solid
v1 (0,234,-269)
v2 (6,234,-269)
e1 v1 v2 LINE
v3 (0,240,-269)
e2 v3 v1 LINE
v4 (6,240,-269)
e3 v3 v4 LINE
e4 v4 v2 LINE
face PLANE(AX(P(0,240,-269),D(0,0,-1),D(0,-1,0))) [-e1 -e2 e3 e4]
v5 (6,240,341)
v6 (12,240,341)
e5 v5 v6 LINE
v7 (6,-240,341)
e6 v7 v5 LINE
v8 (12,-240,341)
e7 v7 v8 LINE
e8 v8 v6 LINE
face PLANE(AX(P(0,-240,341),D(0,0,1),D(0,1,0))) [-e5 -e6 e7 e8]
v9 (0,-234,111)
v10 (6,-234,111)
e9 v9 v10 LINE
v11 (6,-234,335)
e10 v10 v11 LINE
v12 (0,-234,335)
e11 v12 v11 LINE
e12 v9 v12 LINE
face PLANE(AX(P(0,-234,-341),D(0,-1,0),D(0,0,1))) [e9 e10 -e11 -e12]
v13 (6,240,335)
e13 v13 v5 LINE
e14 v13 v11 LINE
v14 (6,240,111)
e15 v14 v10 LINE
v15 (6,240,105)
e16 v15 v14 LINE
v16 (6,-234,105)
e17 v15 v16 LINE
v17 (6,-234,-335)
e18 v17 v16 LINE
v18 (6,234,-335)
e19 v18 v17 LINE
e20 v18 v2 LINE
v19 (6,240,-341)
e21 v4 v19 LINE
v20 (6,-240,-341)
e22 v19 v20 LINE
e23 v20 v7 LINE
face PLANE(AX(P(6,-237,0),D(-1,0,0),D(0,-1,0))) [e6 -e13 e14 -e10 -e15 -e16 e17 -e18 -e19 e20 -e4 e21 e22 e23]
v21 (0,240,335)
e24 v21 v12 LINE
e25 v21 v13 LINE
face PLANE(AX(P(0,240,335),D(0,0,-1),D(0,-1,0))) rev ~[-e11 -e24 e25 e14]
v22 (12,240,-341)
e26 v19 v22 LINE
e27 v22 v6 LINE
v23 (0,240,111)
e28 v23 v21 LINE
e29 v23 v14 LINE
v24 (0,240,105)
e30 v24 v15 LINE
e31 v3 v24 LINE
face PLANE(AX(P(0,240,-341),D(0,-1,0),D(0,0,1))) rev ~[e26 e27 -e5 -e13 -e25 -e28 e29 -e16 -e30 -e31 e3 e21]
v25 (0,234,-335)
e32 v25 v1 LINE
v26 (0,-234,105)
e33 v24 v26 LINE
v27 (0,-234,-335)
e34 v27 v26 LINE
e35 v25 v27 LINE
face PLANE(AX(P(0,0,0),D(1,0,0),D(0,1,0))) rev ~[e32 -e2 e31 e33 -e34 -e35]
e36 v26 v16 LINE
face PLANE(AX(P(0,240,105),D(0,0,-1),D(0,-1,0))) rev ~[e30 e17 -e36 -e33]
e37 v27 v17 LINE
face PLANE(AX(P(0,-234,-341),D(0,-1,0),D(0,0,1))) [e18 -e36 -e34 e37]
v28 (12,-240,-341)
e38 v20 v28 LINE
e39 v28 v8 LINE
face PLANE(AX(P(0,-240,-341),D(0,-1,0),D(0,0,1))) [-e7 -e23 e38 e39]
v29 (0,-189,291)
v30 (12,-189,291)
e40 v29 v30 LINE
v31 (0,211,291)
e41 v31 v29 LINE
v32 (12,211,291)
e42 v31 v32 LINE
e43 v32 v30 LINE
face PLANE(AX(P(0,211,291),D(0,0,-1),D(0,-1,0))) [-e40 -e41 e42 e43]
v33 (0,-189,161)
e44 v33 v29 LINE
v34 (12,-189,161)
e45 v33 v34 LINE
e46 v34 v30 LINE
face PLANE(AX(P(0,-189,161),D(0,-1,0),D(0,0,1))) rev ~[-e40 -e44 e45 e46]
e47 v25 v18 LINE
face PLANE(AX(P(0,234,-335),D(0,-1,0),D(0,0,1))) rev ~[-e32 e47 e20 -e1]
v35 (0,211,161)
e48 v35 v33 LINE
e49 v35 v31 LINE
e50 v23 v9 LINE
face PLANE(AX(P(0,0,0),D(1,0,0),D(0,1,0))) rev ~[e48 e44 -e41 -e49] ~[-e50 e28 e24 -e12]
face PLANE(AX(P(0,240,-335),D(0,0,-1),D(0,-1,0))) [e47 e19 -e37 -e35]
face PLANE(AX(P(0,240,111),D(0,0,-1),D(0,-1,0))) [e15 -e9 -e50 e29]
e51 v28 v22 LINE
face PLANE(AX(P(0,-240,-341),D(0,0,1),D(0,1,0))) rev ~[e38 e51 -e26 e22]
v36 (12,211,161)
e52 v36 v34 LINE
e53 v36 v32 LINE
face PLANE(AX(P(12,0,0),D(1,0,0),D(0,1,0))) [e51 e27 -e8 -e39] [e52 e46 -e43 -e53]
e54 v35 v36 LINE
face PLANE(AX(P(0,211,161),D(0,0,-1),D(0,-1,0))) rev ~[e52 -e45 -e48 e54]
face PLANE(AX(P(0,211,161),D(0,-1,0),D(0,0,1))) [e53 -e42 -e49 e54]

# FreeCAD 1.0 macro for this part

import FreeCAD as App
import Part
import Sketcher
Q = App.Units.Quantity


def add_polygon(sketch, points):
    """Adds a closed chain of lines whose ends are joined by coincident constraints."""
    first, n = sketch.GeometryCount, len(points)
    for a, b in zip(points, points[1:] + points[:1]):
        sketch.addGeometry(Part.LineSegment(App.Vector(*a, 0), App.Vector(*b, 0)), False)
    for i in range(n):
        sketch.addConstraint(Sketcher.Constraint("Coincident", first + i, 2, first + (i + 1) % n, 1))

doc = App.newDocument("Part")
params = doc.addObject("Spreadsheet::Sheet", "Params")
for row, (alias, value) in enumerate([
    ("sketch1_width", "480 mm"),
    ("sketch1_height", "682 mm"),
    ("pad1_length", "12 mm"),
    ("sketch2_width", "6 mm"),
    ("sketch2_height", "682 mm"),
    ("pocket1_length", "6 mm"),
    ("sketch3_width", "474 mm"),
    ("sketch3_height", "6 mm"),
    ("pocket2_length", "6 mm"),
    ("sketch4_width", "6 mm"),
    ("sketch4_height", "66 mm"),
    ("pocket3_length", "6 mm"),
    ("sketch5_width", "474 mm"),
    ("sketch5_height", "6 mm"),
    ("pocket4_length", "6 mm"),
    ("sketch6_width", "400 mm"),
    ("sketch6_height", "130 mm"),
    ("sketch7_width", "474 mm"),
    ("sketch7_height", "6 mm"),
    ("pocket6_length", "6 mm"),
], start=1):
    params.set(f"A{row}", alias)
    params.set(f"B{row}", "=" + value)
    params.setAlias(f"B{row}", alias)

body = doc.addObject("PartDesign::Body", "Body")

sketch1 = body.newObject("Sketcher::SketchObject", "Sketch")
sketch1.AttachmentSupport = (doc.getObject("YZ_Plane"), [""])
sketch1.MapMode = "FlatFace"
add_polygon(sketch1, [(-240, 341), (-240, -341), (240, -341), (240, 341)])
sketch1.addConstraint([
    Sketcher.Constraint("Vertical", 0),
    Sketcher.Constraint("Horizontal", 1),
    Sketcher.Constraint("Vertical", 2),
    Sketcher.Constraint("Horizontal", 3),
    Sketcher.Constraint("Symmetric", 0, 2, 2, 2, -1, 1),
    Sketcher.Constraint("DistanceX", 1, 1, 1, 2, Q("480 mm")),
    Sketcher.Constraint("DistanceY", 0, 2, 0, 1, Q("682 mm")),
])
sketch1.setExpression("Constraints[9]", "Params.sketch1_width")
sketch1.setExpression("Constraints[10]", "Params.sketch1_height")
pad1 = body.newObject("PartDesign::Pad", "Pad")
pad1.Profile = sketch1
pad1.setExpression("Length", "Params.pad1_length")

sketch2 = body.newObject("Sketcher::SketchObject", "Sketch001")
sketch2.AttachmentSupport = (doc.getObject("YZ_Plane"), [""])
sketch2.MapMode = "FlatFace"
add_polygon(sketch2, [(-234, 341), (-234, -341), (-240, -341), (-240, 341)])
sketch2.addConstraint([
    Sketcher.Constraint("Vertical", 0),
    Sketcher.Constraint("Horizontal", 1),
    Sketcher.Constraint("Vertical", 2),
    Sketcher.Constraint("Horizontal", 3),
    Sketcher.Constraint("DistanceX", 1, 2, 1, 1, Q("6 mm")),
    Sketcher.Constraint("DistanceY", 0, 2, 0, 1, Q("682 mm")),
    Sketcher.Constraint("DistanceX", 0, 2, -1, 1, Q("234 mm")),
    Sketcher.Constraint("DistanceY", 0, 2, -1, 1, Q("341 mm")),
])
sketch2.setExpression("Constraints[8]", "Params.sketch2_width")
sketch2.setExpression("Constraints[9]", "Params.sketch2_height")
pocket1 = body.newObject("PartDesign::Pocket", "Pocket")
pocket1.Profile = sketch2
pocket1.setExpression("Length", "Params.pocket1_length")
pocket1.Reversed = True

sketch3 = body.newObject("Sketcher::SketchObject", "Sketch002")
sketch3.AttachmentSupport = (doc.getObject("YZ_Plane"), [""])
sketch3.MapMode = "FlatFace"
add_polygon(sketch3, [(240, -335), (240, -341), (-234, -341), (-234, -335)])
sketch3.addConstraint([
    Sketcher.Constraint("Vertical", 0),
    Sketcher.Constraint("Horizontal", 1),
    Sketcher.Constraint("Vertical", 2),
    Sketcher.Constraint("Horizontal", 3),
    Sketcher.Constraint("DistanceX", 1, 2, 1, 1, Q("474 mm")),
    Sketcher.Constraint("DistanceY", 0, 2, 0, 1, Q("6 mm")),
    Sketcher.Constraint("DistanceX", -1, 1, 0, 2, Q("240 mm")),
    Sketcher.Constraint("DistanceY", 0, 2, -1, 1, Q("341 mm")),
])
sketch3.setExpression("Constraints[8]", "Params.sketch3_width")
sketch3.setExpression("Constraints[9]", "Params.sketch3_height")
pocket2 = body.newObject("PartDesign::Pocket", "Pocket001")
pocket2.Profile = sketch3
pocket2.setExpression("Length", "Params.pocket2_length")
pocket2.Reversed = True

sketch4 = body.newObject("Sketcher::SketchObject", "Sketch003")
sketch4.AttachmentSupport = (doc.getObject("YZ_Plane"), [""])
sketch4.MapMode = "FlatFace"
add_polygon(sketch4, [(240, -269), (240, -335), (234, -335), (234, -269)])
sketch4.addConstraint([
    Sketcher.Constraint("Vertical", 0),
    Sketcher.Constraint("Horizontal", 1),
    Sketcher.Constraint("Vertical", 2),
    Sketcher.Constraint("Horizontal", 3),
    Sketcher.Constraint("DistanceX", 1, 2, 1, 1, Q("6 mm")),
    Sketcher.Constraint("DistanceY", 0, 2, 0, 1, Q("66 mm")),
    Sketcher.Constraint("DistanceX", -1, 1, 0, 2, Q("240 mm")),
    Sketcher.Constraint("DistanceY", 0, 2, -1, 1, Q("335 mm")),
])
sketch4.setExpression("Constraints[8]", "Params.sketch4_width")
sketch4.setExpression("Constraints[9]", "Params.sketch4_height")
pocket3 = body.newObject("PartDesign::Pocket", "Pocket002")
pocket3.Profile = sketch4
pocket3.setExpression("Length", "Params.pocket3_length")
pocket3.Reversed = True

sketch5 = body.newObject("Sketcher::SketchObject", "Sketch004")
sketch5.AttachmentSupport = (doc.getObject("YZ_Plane"), [""])
sketch5.MapMode = "FlatFace"
add_polygon(sketch5, [(240, 111), (240, 105), (-234, 105), (-234, 111)])
sketch5.addConstraint([
    Sketcher.Constraint("Vertical", 0),
    Sketcher.Constraint("Horizontal", 1),
    Sketcher.Constraint("Vertical", 2),
    Sketcher.Constraint("Horizontal", 3),
    Sketcher.Constraint("DistanceX", 1, 2, 1, 1, Q("474 mm")),
    Sketcher.Constraint("DistanceY", 0, 2, 0, 1, Q("6 mm")),
    Sketcher.Constraint("DistanceX", -1, 1, 0, 2, Q("240 mm")),
    Sketcher.Constraint("DistanceY", -1, 1, 0, 2, Q("105 mm")),
])
sketch5.setExpression("Constraints[8]", "Params.sketch5_width")
sketch5.setExpression("Constraints[9]", "Params.sketch5_height")
pocket4 = body.newObject("PartDesign::Pocket", "Pocket003")
pocket4.Profile = sketch5
pocket4.setExpression("Length", "Params.pocket4_length")
pocket4.Reversed = True

sketch6 = body.newObject("Sketcher::SketchObject", "Sketch005")
sketch6.AttachmentSupport = (doc.getObject("YZ_Plane"), [""])
sketch6.MapMode = "FlatFace"
add_polygon(sketch6, [(211, 291), (211, 161), (-189, 161), (-189, 291)])
sketch6.addConstraint([
    Sketcher.Constraint("Vertical", 0),
    Sketcher.Constraint("Horizontal", 1),
    Sketcher.Constraint("Vertical", 2),
    Sketcher.Constraint("Horizontal", 3),
    Sketcher.Constraint("DistanceX", 1, 2, 1, 1, Q("400 mm")),
    Sketcher.Constraint("DistanceY", 0, 2, 0, 1, Q("130 mm")),
    Sketcher.Constraint("DistanceX", -1, 1, 0, 2, Q("211 mm")),
    Sketcher.Constraint("DistanceY", -1, 1, 0, 2, Q("161 mm")),
])
sketch6.setExpression("Constraints[8]", "Params.sketch6_width")
sketch6.setExpression("Constraints[9]", "Params.sketch6_height")
pocket5 = body.newObject("PartDesign::Pocket", "Pocket004")
pocket5.Profile = sketch6
pocket5.Type = "ThroughAll"
pocket5.Reversed = True

sketch7 = body.newObject("Sketcher::SketchObject", "Sketch006")
sketch7.AttachmentSupport = (doc.getObject("YZ_Plane"), [""])
sketch7.MapMode = "FlatFace"
add_polygon(sketch7, [(240, 341), (240, 335), (-234, 335), (-234, 341)])
sketch7.addConstraint([
    Sketcher.Constraint("Vertical", 0),
    Sketcher.Constraint("Horizontal", 1),
    Sketcher.Constraint("Vertical", 2),
    Sketcher.Constraint("Horizontal", 3),
    Sketcher.Constraint("DistanceX", 1, 2, 1, 1, Q("474 mm")),
    Sketcher.Constraint("DistanceY", 0, 2, 0, 1, Q("6 mm")),
    Sketcher.Constraint("DistanceX", -1, 1, 0, 2, Q("240 mm")),
    Sketcher.Constraint("DistanceY", -1, 1, 0, 2, Q("335 mm")),
])
sketch7.setExpression("Constraints[8]", "Params.sketch7_width")
sketch7.setExpression("Constraints[9]", "Params.sketch7_height")
pocket6 = body.newObject("PartDesign::Pocket", "Pocket005")
pocket6.Profile = sketch7
pocket6.setExpression("Length", "Params.pocket6_length")
pocket6.Reversed = True

doc.recompute()
